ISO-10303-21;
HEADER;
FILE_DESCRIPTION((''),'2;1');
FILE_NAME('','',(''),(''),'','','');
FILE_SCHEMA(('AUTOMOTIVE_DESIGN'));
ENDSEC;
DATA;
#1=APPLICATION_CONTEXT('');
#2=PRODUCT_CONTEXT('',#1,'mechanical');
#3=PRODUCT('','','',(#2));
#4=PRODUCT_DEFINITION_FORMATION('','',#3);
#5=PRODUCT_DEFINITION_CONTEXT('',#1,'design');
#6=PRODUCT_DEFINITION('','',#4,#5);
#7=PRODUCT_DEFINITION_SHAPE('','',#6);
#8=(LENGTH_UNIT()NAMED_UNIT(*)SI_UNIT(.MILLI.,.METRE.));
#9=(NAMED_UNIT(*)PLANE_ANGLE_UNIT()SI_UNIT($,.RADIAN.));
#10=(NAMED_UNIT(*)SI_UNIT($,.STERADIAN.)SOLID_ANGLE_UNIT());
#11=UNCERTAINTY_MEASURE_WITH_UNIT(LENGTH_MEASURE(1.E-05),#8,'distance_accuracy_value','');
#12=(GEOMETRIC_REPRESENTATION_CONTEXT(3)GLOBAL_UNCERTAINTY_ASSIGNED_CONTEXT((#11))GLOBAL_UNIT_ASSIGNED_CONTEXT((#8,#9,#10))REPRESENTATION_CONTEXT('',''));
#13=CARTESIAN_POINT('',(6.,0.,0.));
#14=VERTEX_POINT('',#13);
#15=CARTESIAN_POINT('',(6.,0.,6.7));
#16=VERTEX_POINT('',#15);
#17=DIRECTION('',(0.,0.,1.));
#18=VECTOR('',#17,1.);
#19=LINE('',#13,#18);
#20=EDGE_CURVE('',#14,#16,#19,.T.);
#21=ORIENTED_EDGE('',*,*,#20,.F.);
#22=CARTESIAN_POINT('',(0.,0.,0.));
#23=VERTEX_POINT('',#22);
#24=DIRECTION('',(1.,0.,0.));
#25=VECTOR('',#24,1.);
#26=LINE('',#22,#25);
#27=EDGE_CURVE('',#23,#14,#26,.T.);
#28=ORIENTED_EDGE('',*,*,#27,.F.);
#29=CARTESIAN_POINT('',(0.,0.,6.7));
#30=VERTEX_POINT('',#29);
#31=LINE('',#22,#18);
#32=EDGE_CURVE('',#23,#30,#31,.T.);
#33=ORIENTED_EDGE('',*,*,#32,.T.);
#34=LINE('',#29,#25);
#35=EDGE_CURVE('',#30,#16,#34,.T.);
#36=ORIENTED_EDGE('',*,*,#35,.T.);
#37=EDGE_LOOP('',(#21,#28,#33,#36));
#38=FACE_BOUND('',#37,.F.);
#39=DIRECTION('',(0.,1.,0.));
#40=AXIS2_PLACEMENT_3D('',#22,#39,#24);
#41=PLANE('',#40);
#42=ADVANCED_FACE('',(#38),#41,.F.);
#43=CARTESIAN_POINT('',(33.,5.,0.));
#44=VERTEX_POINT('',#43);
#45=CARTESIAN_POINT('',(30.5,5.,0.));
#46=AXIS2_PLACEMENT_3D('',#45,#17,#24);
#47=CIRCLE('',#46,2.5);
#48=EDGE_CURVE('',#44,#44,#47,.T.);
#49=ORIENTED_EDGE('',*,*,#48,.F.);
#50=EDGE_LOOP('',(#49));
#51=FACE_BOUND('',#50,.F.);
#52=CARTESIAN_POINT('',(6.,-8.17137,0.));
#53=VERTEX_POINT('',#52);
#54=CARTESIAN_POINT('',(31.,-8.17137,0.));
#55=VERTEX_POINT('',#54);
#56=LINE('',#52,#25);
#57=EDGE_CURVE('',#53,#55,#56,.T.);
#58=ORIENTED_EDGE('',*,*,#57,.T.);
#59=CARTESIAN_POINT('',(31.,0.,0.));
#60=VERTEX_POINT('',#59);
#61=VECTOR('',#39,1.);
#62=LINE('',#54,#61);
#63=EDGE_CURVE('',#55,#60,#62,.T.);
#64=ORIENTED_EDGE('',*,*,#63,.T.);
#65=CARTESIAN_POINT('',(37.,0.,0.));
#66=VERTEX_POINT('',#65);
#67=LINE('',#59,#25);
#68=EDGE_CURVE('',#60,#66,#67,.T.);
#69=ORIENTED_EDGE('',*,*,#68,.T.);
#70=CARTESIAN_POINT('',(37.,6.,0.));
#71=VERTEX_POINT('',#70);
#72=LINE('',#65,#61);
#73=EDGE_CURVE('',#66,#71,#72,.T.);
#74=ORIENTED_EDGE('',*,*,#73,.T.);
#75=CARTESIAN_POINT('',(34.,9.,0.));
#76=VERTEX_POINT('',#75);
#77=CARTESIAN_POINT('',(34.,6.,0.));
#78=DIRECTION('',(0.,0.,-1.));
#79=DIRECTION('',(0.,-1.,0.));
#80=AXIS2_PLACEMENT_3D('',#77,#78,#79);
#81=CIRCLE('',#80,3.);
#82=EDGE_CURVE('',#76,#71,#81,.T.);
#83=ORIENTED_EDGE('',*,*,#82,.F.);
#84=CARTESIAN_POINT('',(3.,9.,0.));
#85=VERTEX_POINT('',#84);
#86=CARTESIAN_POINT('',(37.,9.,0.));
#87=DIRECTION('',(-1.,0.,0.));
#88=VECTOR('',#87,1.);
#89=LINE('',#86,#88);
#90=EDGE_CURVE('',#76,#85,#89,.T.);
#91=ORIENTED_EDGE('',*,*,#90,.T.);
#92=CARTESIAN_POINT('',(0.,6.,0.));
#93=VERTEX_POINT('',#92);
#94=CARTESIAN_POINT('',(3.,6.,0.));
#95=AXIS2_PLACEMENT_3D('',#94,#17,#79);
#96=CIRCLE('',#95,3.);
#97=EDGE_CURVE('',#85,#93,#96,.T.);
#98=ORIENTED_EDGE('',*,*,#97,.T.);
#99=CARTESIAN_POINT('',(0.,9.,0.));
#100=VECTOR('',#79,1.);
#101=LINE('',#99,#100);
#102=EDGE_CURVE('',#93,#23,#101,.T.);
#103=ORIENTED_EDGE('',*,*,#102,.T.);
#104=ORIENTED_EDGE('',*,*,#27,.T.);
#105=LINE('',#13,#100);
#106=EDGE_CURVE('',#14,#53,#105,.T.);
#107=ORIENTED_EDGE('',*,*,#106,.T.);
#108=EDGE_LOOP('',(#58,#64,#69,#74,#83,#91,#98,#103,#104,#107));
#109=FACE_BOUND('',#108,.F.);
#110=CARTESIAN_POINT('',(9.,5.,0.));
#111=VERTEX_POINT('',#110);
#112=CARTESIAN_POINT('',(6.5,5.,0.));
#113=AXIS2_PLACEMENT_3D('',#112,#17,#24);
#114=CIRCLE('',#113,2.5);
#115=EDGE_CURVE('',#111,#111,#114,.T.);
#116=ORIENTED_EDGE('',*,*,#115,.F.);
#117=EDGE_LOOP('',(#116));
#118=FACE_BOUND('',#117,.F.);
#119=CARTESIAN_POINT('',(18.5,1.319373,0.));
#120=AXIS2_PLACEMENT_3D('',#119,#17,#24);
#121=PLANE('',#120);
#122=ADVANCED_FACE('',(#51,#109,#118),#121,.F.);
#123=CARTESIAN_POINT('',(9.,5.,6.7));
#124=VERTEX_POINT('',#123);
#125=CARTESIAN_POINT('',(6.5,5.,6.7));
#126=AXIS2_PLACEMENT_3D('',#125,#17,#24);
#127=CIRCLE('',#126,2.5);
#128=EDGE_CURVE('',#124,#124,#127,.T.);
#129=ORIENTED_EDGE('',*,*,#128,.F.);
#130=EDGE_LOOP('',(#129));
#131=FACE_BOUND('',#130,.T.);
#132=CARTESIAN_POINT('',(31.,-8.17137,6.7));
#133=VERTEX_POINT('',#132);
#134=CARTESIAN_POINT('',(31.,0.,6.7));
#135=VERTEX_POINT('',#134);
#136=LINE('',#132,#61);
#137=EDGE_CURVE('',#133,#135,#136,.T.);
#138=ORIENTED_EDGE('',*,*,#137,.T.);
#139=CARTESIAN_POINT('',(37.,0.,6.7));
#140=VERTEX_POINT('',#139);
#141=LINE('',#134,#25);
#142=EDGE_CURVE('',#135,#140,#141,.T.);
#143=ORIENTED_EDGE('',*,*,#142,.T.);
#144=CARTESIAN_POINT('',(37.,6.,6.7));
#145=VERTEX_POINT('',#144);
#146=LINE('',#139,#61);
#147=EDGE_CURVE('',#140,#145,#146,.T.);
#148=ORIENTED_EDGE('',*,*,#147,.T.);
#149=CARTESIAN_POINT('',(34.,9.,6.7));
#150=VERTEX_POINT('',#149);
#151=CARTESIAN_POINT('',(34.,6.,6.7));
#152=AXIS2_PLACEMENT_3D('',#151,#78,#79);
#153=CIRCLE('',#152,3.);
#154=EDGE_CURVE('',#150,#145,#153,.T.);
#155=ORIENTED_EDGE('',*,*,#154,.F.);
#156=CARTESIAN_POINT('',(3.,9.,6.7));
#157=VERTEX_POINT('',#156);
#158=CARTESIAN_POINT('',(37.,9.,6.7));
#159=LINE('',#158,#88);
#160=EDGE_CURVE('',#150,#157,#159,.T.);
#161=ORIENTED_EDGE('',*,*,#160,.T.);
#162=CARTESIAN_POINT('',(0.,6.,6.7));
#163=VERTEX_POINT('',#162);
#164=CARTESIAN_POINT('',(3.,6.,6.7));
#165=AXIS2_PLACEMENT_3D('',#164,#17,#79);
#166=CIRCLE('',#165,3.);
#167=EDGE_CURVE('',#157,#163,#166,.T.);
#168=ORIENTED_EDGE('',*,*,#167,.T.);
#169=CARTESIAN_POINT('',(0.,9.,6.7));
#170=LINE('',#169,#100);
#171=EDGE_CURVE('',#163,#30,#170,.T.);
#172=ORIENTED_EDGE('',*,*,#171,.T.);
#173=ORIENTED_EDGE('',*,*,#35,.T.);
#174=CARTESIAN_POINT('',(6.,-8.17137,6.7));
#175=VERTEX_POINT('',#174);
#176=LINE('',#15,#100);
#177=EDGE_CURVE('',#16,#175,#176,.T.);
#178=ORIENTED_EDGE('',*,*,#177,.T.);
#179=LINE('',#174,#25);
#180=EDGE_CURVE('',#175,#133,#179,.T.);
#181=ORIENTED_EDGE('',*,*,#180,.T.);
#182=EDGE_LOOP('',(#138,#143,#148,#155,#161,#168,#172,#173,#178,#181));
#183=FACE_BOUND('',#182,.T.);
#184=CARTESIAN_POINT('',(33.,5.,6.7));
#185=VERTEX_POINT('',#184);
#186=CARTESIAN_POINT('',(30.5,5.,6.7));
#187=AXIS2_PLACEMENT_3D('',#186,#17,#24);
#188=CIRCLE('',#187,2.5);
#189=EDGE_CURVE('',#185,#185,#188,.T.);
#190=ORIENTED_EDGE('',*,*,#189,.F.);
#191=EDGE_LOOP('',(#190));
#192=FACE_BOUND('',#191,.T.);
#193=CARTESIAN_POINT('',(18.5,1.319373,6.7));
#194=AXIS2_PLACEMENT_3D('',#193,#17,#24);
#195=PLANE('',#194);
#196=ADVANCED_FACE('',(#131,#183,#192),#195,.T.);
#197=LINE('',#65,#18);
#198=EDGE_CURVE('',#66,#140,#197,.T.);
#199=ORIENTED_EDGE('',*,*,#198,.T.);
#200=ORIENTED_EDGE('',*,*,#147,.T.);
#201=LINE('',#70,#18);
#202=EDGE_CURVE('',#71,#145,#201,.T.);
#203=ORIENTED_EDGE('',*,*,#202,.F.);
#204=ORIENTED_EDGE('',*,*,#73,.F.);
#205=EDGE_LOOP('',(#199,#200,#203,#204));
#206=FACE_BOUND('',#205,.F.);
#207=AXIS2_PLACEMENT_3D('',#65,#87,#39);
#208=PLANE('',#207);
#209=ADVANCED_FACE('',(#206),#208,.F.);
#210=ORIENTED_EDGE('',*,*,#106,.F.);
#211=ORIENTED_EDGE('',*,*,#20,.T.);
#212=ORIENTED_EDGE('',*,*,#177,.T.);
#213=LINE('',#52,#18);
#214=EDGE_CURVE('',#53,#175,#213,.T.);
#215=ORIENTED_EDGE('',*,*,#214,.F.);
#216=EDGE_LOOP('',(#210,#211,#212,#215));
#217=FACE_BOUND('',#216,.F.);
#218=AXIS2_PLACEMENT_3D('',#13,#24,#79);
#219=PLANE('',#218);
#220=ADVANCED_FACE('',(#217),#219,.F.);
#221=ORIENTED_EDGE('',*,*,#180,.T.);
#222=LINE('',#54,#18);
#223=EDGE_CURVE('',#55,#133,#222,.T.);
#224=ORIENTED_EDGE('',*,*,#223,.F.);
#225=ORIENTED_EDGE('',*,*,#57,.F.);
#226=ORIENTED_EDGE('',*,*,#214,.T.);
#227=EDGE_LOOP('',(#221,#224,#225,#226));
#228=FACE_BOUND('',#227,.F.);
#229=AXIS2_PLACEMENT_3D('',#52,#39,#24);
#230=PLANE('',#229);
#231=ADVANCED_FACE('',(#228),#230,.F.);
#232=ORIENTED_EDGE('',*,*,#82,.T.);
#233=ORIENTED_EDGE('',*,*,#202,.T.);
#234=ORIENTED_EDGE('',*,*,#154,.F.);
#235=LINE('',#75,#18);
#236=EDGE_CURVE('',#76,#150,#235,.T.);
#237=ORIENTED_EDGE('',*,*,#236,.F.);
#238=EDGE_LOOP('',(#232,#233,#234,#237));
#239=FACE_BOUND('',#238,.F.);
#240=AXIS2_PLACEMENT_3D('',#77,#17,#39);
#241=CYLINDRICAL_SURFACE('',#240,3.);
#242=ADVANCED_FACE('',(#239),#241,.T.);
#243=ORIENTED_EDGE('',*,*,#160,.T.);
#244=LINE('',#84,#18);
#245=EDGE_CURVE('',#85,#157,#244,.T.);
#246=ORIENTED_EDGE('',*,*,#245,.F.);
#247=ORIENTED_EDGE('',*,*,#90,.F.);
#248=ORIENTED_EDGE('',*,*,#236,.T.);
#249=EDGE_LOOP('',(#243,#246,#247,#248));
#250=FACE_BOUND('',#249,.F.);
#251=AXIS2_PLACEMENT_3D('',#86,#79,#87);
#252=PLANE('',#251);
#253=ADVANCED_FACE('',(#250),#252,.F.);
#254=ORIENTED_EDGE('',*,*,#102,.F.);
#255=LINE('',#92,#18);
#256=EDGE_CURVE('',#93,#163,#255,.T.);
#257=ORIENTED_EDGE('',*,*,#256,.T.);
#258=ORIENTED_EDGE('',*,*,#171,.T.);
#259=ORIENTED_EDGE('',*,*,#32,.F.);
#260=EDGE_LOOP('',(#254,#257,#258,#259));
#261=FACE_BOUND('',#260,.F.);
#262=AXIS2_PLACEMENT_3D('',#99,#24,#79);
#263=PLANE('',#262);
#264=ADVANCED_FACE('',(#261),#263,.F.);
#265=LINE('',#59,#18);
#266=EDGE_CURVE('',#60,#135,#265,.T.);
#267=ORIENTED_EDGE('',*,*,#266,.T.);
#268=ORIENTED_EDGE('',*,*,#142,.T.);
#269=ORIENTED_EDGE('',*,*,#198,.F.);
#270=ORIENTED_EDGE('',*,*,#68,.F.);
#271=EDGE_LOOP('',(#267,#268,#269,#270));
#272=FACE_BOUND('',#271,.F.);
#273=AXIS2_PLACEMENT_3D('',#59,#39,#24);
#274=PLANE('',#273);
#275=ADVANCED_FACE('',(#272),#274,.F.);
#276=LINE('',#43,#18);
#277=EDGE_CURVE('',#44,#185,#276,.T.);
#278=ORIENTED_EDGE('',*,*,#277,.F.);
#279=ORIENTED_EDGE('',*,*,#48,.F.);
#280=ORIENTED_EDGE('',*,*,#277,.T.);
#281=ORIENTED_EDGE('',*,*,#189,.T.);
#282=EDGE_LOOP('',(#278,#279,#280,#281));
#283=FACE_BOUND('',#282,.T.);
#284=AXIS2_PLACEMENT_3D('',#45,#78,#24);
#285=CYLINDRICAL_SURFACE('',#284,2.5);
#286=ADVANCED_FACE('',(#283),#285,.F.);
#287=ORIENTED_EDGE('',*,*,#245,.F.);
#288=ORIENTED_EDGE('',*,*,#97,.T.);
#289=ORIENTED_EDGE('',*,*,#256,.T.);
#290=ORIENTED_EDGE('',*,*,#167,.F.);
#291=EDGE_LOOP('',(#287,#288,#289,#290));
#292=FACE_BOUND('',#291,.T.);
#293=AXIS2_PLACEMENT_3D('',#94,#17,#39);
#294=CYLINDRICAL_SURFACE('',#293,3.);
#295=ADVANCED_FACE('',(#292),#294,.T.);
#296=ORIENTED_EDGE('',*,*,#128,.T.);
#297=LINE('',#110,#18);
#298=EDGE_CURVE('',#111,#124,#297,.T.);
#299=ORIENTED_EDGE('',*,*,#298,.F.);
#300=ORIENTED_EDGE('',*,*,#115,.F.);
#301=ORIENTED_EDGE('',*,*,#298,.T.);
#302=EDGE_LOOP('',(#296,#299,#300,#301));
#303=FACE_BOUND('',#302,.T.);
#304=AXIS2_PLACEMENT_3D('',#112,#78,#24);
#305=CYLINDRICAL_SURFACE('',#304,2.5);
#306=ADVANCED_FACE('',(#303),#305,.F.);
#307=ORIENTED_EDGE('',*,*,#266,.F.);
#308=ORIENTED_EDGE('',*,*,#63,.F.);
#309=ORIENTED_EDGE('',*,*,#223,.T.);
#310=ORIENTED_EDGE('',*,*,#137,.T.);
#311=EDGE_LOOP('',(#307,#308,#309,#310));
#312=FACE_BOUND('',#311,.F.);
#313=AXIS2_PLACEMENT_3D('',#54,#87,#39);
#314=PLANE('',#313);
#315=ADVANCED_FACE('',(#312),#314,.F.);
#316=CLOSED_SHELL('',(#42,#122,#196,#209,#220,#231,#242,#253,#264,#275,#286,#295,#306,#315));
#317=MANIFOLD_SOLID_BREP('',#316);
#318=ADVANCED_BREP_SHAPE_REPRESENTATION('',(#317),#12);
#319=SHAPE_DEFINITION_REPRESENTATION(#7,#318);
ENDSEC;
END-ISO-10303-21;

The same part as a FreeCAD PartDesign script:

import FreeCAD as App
import Part
import Sketcher
Q = App.Units.Quantity


def edges_at(feature, points):
    """Names of the edges that pass closest to the given points."""
    edges = feature.Shape.Edges
    near = lambda p: min(range(len(edges)), key=lambda i: edges[i].distToShape(Part.Vertex(*p))[0])
    return sorted({f"Edge{near(p) + 1}" for p in points})

doc = App.newDocument("Part")
body = doc.addObject("PartDesign::Body", "Body")

sketch1 = body.newObject("Sketcher::SketchObject", "Sketch")
sketch1.AttachmentSupport = (doc.getObject("XY_Plane"), [""])
sketch1.MapMode = "FlatFace"
sketch1.addGeometry(Part.LineSegment(App.Vector(0, 0, 0), App.Vector(6, 0, 0)), False)
sketch1.addGeometry(Part.LineSegment(App.Vector(6, 0, 0), App.Vector(6, -8.2, 0)), False)
sketch1.addGeometry(Part.LineSegment(App.Vector(6, -8.2, 0), App.Vector(31, -8.2, 0)), False)
sketch1.addGeometry(Part.LineSegment(App.Vector(31, -8.2, 0), App.Vector(31, 0, 0)), False)
sketch1.addGeometry(Part.LineSegment(App.Vector(31, 0, 0), App.Vector(37, 0, 0)), False)
sketch1.addGeometry(Part.LineSegment(App.Vector(37, 0, 0), App.Vector(37, 9, 0)), False)
sketch1.addGeometry(Part.LineSegment(App.Vector(37, 9, 0), App.Vector(0, 9, 0)), False)
sketch1.addGeometry(Part.LineSegment(App.Vector(0, 9, 0), App.Vector(0, 0, 0)), False)
sketch1.addGeometry(Part.Circle(App.Vector(6.5, 5, 0), App.Vector(0, 0, 1), 2.5), False)
sketch1.addGeometry(Part.Circle(App.Vector(30.5, 5, 0), App.Vector(0, 0, 1), 2.5), False)
sketch1.addConstraint(Sketcher.Constraint("Coincident", 0, 2, 1, 1))
sketch1.addConstraint(Sketcher.Constraint("Coincident", 1, 2, 2, 1))
sketch1.addConstraint(Sketcher.Constraint("Coincident", 2, 2, 3, 1))
sketch1.addConstraint(Sketcher.Constraint("Coincident", 3, 2, 4, 1))
sketch1.addConstraint(Sketcher.Constraint("Coincident", 4, 2, 5, 1))
sketch1.addConstraint(Sketcher.Constraint("Coincident", 5, 2, 6, 1))
sketch1.addConstraint(Sketcher.Constraint("Coincident", 6, 2, 7, 1))
sketch1.addConstraint(Sketcher.Constraint("Coincident", 7, 2, 0, 1))
sketch1.addConstraint(Sketcher.Constraint("Horizontal", 0))
sketch1.addConstraint(Sketcher.Constraint("Vertical", 1))
sketch1.addConstraint(Sketcher.Constraint("Horizontal", 2))
sketch1.addConstraint(Sketcher.Constraint("Vertical", 3))
sketch1.addConstraint(Sketcher.Constraint("Horizontal", 4))
sketch1.addConstraint(Sketcher.Constraint("Vertical", 5))
sketch1.addConstraint(Sketcher.Constraint("Horizontal", 6))
sketch1.addConstraint(Sketcher.Constraint("Vertical", 7))
sketch1.addConstraint(Sketcher.Constraint("Coincident", 7, 2, -1, 1))
sketch1.addConstraint(Sketcher.Constraint("Equal", 8, 9))
sketch1.addConstraint(Sketcher.Constraint("PointOnObject", 3, 2, -1))
sketch1.addConstraint(Sketcher.Constraint("Horizontal", 8, 3, 9, 3))
sketch1.addConstraint(Sketcher.Constraint("Equal", 0, 4))
sketch1.addConstraint(Sketcher.Constraint("Diameter", 8, Q("5 mm")))
sketch1.addConstraint(Sketcher.Constraint("DistanceX", 0, 1, 0, 2, Q("6 mm")))
sketch1.addConstraint(Sketcher.Constraint("DistanceX", 2, 1, 2, 2, Q("25 mm")))
sketch1.addConstraint(Sketcher.Constraint("DistanceY", 5, 1, 5, 2, Q("9 mm")))
sketch1.addConstraint(Sketcher.Constraint("DistanceY", -1, 1, 8, 3, Q("5 mm")))
sketch1.addConstraint(Sketcher.Constraint("DistanceX", 8, 3, 9, 3, Q("24 mm")))
sketch1.addConstraint(Sketcher.Constraint("DistanceX", -1, 1, 8, 3, Q("6.5 mm")))
sketch1.addConstraint(Sketcher.Constraint("DistanceY", 1, 2, 1, 1, Q("8.17137 mm")))
pad1 = body.newObject("PartDesign::Pad", "Pad")
pad1.Profile = sketch1
pad1.Length = 6.7
doc.recompute()

fillet = body.newObject("PartDesign::Fillet", "Fillet")
fillet.Base = (pad1, edges_at(pad1, [(37, 9, 3.35)]))
fillet.Radius = 3
doc.recompute()

fillet2 = body.newObject("PartDesign::Fillet", "Fillet001")
fillet2.Base = (fillet, edges_at(fillet, [(0, 9, 3.35)]))
fillet2.Radius = 3

doc.recompute()
